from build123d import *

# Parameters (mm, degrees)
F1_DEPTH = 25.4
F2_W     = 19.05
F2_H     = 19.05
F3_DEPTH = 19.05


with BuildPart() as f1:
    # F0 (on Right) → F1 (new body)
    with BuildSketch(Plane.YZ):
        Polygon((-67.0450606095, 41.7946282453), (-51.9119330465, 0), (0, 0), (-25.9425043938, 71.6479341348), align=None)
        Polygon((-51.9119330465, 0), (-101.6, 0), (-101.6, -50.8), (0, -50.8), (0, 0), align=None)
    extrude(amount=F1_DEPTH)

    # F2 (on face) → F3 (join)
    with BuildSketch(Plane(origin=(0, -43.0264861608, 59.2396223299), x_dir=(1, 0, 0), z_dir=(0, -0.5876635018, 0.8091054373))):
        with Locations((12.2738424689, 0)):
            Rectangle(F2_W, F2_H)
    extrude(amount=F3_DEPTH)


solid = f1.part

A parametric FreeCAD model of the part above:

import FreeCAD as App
import Part
import Sketcher

V = App.Vector
Q = App.Units.Quantity

doc = App.newDocument("Part")
body = doc.addObject("PartDesign::Body", "Body")

sketch1 = body.newObject("Sketcher::SketchObject", "Sketch")
sketch1.AttachmentSupport = (doc.getObject("YZ_Plane"), [""])
sketch1.MapMode = "FlatFace"
sketch1.addGeometry([
    Part.LineSegment(V(-67, 42, 0), V(-52, 0, 0)),
    Part.LineSegment(V(-52, 0, 0), V(-102, 0, 0)),
    Part.LineSegment(V(-102, 0, 0), V(-102, -51, 0)),
    Part.LineSegment(V(-102, -51, 0), V(0, -51, 0)),
    Part.LineSegment(V(0, -51, 0), V(0, 0, 0)),
    Part.LineSegment(V(0, 0, 0), V(-26, 72, 0)),
    Part.LineSegment(V(-26, 72, 0), V(-67, 42, 0)),
], False)
sketch1.addConstraint([
    Sketcher.Constraint("Coincident", 0, 2, 1, 1),
    Sketcher.Constraint("Coincident", 1, 2, 2, 1),
    Sketcher.Constraint("Coincident", 2, 2, 3, 1),
    Sketcher.Constraint("Coincident", 3, 2, 4, 1),
    Sketcher.Constraint("Coincident", 4, 2, 5, 1),
    Sketcher.Constraint("Coincident", 5, 2, 6, 1),
    Sketcher.Constraint("Coincident", 6, 2, 0, 1),
    Sketcher.Constraint("Horizontal", 1),
    Sketcher.Constraint("Vertical", 2),
    Sketcher.Constraint("Horizontal", 3),
    Sketcher.Constraint("Vertical", 4),
    Sketcher.Constraint("Coincident", 4, 2, -1, 1),
    Sketcher.Constraint("PointOnObject", 0, 2, -1),
    Sketcher.Constraint("Parallel", 0, 5),
    Sketcher.Constraint("DistanceX", 3, 1, 3, 2, Q("4 in")),
    Sketcher.Constraint("DistanceY", 2, 2, 2, 1, Q("2 in")),
    Sketcher.Constraint("Distance", 5, Q("3 in")),
    Sketcher.Constraint("Distance", 6, Q("2 in")),
    Sketcher.Constraint("Distance", 0, Q("1.75 in")),
    Sketcher.Constraint("DistanceX", 1, 2, 1, 1, 49.688067),
])
pad1 = body.newObject("PartDesign::Pad", "Pad")
pad1.Profile = sketch1
pad1.Length = Q("1 in")

sketch2 = body.newObject("Sketcher::SketchObject", "Sketch001")
sketch2.Placement = App.Placement(V(0, -43.026486, 59.239622), App.Rotation(V(1, 0, 0), V(0, 0.809105437, 0.587663502), V(0, -0.587663502, 0.809105437), "ZXY"))
sketch2.addGeometry([
    Part.LineSegment(V(3, 10, 0), V(3, -10, 0)),
    Part.LineSegment(V(3, -10, 0), V(22, -10, 0)),
    Part.LineSegment(V(22, -10, 0), V(22, 10, 0)),
    Part.LineSegment(V(22, 10, 0), V(3, 10, 0)),
], False)
sketch2.addConstraint([
    Sketcher.Constraint("Coincident", 0, 2, 1, 1),
    Sketcher.Constraint("Coincident", 1, 2, 2, 1),
    Sketcher.Constraint("Coincident", 2, 2, 3, 1),
    Sketcher.Constraint("Coincident", 3, 2, 0, 1),
    Sketcher.Constraint("Vertical", 0),
    Sketcher.Constraint("Horizontal", 1),
    Sketcher.Constraint("Vertical", 2),
    Sketcher.Constraint("Horizontal", 3),
    Sketcher.Constraint("Equal", 3, 0),
    Sketcher.Constraint("DistanceX", 1, 1, 1, 2, Q("0.75 in")),
    Sketcher.Constraint("DistanceY", 0, 2, -1, 1, Q("0.375 in")),
    Sketcher.Constraint("DistanceX", -1, 1, 0, 2, 2.748842),
])
pad2 = body.newObject("PartDesign::Pad", "Pad001")
pad2.Profile = sketch2
pad2.Length = Q("0.75 in")

doc.recompute()
